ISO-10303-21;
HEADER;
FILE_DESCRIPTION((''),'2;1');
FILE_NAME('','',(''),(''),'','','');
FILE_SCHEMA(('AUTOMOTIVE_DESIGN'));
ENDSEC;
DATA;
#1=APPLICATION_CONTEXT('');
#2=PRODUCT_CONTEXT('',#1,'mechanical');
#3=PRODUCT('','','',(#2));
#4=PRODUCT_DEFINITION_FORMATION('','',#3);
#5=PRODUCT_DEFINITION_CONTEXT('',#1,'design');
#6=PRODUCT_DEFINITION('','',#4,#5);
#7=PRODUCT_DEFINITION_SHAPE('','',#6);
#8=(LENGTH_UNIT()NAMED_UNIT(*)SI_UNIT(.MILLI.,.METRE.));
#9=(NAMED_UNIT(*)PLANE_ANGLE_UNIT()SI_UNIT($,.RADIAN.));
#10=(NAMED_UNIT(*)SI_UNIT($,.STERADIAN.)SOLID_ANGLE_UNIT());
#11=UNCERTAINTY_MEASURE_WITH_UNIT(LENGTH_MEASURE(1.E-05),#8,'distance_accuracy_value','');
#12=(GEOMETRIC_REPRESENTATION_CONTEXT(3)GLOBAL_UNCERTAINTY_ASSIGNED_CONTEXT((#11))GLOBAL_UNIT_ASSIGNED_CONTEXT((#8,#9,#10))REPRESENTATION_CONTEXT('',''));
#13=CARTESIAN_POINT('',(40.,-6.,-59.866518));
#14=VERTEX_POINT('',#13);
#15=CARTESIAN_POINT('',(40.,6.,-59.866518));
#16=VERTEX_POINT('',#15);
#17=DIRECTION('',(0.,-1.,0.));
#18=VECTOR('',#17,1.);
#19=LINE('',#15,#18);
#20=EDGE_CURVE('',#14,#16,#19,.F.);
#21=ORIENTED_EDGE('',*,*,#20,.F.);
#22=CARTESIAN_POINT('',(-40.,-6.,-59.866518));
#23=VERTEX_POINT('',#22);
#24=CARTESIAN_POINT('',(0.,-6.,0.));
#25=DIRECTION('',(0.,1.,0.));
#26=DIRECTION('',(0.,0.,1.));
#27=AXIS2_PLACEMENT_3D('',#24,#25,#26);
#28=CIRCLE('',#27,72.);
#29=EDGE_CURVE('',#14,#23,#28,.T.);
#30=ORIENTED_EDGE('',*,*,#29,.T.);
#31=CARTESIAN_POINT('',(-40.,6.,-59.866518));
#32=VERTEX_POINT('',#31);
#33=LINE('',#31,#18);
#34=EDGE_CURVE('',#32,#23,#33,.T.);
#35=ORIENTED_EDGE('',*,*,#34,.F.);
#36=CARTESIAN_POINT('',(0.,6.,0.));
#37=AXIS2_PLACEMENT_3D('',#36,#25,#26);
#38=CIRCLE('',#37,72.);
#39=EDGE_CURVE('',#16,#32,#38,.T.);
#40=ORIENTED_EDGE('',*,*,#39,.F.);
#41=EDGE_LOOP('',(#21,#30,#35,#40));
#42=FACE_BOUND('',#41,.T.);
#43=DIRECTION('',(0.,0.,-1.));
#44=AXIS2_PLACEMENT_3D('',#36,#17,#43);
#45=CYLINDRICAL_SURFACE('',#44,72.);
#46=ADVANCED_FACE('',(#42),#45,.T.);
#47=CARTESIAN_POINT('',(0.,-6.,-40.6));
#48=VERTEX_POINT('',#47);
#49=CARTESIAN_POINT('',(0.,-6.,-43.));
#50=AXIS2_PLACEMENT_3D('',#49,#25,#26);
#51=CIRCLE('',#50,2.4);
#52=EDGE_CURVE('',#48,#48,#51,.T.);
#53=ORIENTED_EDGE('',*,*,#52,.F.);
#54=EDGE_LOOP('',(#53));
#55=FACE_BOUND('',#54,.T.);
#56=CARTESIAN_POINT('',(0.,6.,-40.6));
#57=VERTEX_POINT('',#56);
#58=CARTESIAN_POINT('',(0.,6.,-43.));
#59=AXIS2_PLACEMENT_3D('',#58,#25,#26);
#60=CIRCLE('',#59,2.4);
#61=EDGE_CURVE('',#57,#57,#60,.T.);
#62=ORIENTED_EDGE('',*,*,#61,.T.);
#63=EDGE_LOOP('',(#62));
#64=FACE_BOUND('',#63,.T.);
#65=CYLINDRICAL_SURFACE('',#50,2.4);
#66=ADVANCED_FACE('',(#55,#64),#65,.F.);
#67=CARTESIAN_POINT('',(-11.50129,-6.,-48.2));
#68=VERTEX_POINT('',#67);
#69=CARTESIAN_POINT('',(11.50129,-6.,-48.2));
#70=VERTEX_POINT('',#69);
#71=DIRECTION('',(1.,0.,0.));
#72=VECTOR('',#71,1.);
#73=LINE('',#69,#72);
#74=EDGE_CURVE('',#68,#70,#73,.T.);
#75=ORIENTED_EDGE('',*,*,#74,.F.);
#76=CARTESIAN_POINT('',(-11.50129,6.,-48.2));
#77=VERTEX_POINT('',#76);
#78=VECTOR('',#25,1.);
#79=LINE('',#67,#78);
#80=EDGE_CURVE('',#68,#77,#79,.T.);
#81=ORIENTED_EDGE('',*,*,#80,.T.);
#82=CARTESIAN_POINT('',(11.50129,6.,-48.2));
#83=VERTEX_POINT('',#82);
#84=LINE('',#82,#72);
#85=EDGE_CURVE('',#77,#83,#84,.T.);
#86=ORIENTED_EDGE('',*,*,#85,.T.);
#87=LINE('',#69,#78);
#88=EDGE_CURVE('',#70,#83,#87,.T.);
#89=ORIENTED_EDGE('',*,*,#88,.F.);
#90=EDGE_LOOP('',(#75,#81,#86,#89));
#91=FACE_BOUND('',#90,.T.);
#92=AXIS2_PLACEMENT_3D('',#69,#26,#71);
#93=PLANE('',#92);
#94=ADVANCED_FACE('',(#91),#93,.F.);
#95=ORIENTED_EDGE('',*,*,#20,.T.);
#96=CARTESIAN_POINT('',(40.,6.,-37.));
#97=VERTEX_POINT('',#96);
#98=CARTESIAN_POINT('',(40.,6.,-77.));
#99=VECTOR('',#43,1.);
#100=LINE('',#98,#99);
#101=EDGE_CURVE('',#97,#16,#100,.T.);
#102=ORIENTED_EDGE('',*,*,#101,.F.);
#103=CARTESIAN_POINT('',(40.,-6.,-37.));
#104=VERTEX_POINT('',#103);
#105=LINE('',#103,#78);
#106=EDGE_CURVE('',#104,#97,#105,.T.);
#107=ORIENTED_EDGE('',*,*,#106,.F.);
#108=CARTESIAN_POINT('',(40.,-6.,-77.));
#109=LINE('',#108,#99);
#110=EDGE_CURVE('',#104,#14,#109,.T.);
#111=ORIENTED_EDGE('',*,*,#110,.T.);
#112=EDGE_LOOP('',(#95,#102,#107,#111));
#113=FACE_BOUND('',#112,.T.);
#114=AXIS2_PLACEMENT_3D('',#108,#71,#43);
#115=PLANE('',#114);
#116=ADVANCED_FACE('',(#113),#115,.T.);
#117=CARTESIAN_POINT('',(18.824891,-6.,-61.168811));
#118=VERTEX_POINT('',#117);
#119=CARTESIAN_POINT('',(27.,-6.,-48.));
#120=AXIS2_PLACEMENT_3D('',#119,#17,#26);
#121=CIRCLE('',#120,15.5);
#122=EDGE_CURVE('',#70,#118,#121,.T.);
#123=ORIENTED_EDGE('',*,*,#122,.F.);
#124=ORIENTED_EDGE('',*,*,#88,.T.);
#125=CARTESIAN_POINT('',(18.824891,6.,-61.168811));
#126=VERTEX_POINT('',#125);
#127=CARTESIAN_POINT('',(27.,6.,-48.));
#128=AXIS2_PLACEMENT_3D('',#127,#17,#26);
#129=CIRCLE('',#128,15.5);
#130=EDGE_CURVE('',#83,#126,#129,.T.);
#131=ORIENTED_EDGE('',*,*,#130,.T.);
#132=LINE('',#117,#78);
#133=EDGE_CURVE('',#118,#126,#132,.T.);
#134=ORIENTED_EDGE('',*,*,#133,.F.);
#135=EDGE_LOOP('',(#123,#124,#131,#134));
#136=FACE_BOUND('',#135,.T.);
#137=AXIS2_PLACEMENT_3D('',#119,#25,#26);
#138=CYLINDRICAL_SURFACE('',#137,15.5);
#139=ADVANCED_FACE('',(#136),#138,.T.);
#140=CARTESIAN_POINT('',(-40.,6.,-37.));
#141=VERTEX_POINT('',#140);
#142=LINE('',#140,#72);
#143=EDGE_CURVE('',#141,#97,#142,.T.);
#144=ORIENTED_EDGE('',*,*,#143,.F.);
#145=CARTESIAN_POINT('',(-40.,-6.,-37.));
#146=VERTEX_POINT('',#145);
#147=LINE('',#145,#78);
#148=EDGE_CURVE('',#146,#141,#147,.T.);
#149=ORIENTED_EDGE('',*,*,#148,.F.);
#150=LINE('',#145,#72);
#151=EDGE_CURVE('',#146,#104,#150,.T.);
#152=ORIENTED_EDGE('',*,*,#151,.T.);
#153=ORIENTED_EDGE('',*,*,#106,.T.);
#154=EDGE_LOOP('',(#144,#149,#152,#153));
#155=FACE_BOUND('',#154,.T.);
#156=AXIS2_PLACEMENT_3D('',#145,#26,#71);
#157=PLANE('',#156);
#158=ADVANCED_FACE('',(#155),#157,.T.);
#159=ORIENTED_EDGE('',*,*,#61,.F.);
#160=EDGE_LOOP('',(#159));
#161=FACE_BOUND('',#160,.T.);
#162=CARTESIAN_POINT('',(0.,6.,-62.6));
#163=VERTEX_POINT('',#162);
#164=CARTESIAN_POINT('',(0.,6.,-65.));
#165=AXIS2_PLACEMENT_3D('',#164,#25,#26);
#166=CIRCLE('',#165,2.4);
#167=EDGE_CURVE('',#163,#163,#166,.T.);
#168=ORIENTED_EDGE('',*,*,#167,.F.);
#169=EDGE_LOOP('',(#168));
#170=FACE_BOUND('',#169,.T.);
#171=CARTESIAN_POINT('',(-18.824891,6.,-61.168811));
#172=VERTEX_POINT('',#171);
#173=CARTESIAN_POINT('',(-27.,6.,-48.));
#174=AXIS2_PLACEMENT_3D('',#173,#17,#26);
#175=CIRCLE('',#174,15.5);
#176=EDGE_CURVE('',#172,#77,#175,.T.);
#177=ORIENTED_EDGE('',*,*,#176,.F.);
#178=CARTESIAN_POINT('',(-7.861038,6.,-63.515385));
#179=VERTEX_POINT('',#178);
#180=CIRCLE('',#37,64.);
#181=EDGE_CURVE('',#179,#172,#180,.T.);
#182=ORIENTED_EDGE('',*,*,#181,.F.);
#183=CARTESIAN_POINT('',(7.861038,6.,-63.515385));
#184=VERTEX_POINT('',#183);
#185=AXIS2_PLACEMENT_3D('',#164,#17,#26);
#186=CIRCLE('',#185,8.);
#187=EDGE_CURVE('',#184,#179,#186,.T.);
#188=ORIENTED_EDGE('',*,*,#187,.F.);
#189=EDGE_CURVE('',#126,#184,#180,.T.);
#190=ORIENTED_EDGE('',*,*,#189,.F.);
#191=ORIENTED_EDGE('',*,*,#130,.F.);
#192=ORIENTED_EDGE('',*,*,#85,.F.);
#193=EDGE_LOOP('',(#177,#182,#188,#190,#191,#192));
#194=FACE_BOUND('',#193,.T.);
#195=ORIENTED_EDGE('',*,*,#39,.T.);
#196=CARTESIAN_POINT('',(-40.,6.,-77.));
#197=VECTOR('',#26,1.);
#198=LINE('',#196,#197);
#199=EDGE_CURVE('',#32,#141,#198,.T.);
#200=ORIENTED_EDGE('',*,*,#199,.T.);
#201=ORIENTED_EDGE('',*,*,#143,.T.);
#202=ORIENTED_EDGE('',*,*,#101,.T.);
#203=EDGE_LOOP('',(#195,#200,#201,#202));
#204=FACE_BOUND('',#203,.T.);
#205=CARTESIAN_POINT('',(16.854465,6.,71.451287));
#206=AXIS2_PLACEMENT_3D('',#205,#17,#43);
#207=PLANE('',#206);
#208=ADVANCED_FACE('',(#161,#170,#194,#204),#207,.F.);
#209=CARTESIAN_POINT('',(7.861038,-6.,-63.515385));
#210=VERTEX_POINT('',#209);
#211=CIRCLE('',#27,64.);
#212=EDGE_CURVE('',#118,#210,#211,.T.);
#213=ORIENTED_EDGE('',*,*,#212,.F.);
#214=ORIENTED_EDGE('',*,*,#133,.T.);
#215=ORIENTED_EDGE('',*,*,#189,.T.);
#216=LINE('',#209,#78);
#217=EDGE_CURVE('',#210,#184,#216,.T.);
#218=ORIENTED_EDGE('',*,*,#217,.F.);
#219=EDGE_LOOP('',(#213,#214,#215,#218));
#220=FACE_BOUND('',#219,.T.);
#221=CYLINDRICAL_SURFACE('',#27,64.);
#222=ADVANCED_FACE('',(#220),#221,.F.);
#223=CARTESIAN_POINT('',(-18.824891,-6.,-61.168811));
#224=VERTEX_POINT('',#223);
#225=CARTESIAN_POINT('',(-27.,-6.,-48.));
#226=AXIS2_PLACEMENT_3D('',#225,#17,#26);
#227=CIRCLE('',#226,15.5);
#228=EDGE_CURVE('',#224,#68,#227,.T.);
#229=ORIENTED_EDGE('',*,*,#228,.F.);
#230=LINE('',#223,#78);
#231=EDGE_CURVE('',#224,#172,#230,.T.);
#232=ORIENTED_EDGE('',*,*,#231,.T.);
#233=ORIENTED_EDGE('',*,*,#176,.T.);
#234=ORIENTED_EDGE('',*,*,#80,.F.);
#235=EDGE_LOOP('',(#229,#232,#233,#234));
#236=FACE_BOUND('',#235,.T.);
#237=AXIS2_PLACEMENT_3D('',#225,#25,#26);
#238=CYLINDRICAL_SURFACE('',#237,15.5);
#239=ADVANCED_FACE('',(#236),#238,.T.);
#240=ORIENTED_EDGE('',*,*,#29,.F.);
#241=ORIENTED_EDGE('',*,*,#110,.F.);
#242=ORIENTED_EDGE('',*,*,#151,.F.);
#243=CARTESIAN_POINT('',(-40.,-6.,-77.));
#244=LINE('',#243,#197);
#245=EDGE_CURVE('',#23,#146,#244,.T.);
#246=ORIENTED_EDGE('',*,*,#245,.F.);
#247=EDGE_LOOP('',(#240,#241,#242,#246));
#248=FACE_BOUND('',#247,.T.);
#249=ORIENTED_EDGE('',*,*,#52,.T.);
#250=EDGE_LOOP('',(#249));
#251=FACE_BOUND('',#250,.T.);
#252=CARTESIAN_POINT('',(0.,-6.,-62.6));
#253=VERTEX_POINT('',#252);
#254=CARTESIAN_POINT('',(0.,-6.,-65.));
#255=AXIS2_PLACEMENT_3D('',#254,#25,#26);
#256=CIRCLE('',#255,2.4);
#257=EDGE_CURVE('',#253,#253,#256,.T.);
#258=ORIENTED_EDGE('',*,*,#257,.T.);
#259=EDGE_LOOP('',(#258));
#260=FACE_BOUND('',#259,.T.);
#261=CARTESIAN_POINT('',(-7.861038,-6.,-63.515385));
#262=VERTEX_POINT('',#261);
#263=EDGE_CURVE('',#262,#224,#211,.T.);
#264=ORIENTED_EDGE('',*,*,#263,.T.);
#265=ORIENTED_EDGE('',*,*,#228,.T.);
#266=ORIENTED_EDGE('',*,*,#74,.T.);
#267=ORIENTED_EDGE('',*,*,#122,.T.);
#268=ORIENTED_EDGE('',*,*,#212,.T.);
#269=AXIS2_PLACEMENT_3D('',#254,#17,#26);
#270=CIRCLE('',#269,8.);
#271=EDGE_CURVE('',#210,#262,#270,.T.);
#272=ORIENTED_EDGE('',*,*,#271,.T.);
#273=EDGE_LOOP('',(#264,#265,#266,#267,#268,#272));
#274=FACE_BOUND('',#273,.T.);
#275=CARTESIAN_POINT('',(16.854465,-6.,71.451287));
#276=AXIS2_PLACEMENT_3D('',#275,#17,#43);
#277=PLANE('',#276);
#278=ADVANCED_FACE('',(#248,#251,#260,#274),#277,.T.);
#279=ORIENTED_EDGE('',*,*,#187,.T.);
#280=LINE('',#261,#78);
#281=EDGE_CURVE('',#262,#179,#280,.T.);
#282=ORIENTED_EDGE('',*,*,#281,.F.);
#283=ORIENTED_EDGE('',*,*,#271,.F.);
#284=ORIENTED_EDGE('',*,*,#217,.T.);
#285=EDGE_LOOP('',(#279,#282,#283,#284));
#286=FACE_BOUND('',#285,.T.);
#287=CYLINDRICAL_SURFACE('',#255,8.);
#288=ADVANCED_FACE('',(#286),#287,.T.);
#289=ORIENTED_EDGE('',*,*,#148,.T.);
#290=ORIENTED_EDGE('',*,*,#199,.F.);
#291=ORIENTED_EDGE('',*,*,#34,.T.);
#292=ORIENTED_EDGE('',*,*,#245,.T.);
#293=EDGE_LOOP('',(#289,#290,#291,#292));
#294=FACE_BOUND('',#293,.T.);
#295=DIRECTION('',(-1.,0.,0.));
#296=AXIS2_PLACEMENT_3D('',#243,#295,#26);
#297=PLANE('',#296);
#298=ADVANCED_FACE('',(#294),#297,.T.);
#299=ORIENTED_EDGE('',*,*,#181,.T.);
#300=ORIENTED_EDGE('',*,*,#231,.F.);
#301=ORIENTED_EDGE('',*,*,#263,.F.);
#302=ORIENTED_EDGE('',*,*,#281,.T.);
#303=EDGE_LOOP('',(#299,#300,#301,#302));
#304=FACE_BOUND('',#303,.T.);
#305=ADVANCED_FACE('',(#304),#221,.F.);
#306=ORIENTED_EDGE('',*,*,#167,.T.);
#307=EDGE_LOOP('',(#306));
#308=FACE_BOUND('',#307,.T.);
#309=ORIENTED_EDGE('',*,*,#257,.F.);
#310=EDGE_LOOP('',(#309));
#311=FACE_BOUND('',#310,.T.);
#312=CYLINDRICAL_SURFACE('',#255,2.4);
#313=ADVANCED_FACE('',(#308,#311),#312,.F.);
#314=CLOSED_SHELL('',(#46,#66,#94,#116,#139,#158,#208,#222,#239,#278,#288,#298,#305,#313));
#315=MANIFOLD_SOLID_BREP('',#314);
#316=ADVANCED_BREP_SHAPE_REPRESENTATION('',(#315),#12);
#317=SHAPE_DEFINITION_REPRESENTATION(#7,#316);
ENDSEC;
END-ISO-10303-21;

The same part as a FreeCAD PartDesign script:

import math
import FreeCAD as App
import Part
import Sketcher

V = App.Vector
Q = App.Units.Quantity


def add_polygon(sketch, points):
    """Adds a closed chain of lines whose ends are joined by coincident constraints."""
    first, n = sketch.GeometryCount, len(points)
    for a, b in zip(points, points[1:] + points[:1]):
        sketch.addGeometry(Part.LineSegment(App.Vector(*a, 0), App.Vector(*b, 0)), False)
    for i in range(n):
        sketch.addConstraint(Sketcher.Constraint("Coincident", first + i, 2, first + (i + 1) % n, 1))

doc = App.newDocument("Part")
params = doc.addObject("Spreadsheet::Sheet", "Params")
for row, (alias, value) in enumerate([
    ("sketch1_radius", "72 mm"),
    ("sketch1_radius2", "5 mm"),
    ("sketch1_radius3", "38.25 mm"),
    ("pad1_length", "12 mm"),
    ("sketch2_radius", "64 mm"),
    ("sketch2_radius2", "8 mm"),
    ("sketch2_radius3", "15.5 mm"),
    ("sketch3_width", "80 mm"),
    ("sketch3_height", "40 mm"),
    ("sketch4_diameter", "4.8 mm"),
], start=1):
    params.set(f"A{row}", alias)
    params.set(f"B{row}", "=" + value)
    params.setAlias(f"B{row}", alias)

body = doc.addObject("PartDesign::Body", "Body")

# Sketch on XZ plane
sketch1 = body.newObject("Sketcher::SketchObject", "Sketch")
sketch1.AttachmentSupport = (doc.getObject("XZ_Plane"), [""])
sketch1.MapMode = "FlatFace"
sketch1.addGeometry(Part.ArcOfCircle(Part.Circle(V(0, 0, 0), V(0, 0, 1), 72), math.radians(120.206525), math.radians(419.793475)), False)
sketch1.addGeometry(Part.ArcOfCircle(Part.Circle(V(-33.70893, 57.902574, 0), V(0, 0, 1), 5), math.radians(38.79458), math.radians(120.206525)), False)
sketch1.addGeometry(Part.ArcOfCircle(Part.Circle(V(0, 85, 0), V(0, 0, 1), 38.25), math.radians(-141.20542), math.radians(-38.79458)), False)
sketch1.addGeometry(Part.ArcOfCircle(Part.Circle(V(33.70893, 57.902574, 0), V(0, 0, 1), 5), math.radians(59.793475), math.radians(141.20542)), False)
sketch1.addConstraint(Sketcher.Constraint("Tangent", 0, 1, 1, 2))
sketch1.addConstraint(Sketcher.Constraint("Tangent", 1, 1, 2, 1))
sketch1.addConstraint(Sketcher.Constraint("Tangent", 2, 2, 3, 2))
sketch1.addConstraint(Sketcher.Constraint("Tangent", 3, 1, 0, 2))
sketch1.addConstraint(Sketcher.Constraint("Coincident", 0, 3, -1, 1))
sketch1.addConstraint(Sketcher.Constraint("Equal", 1, 3))
sketch1.addConstraint(Sketcher.Constraint("PointOnObject", 2, 3, -2))
sketch1.addConstraint(Sketcher.Constraint("Radius", 0, Q("72 mm")))
sketch1.addConstraint(Sketcher.Constraint("Radius", 1, Q("5 mm")))
sketch1.addConstraint(Sketcher.Constraint("Radius", 2, Q("38.25 mm")))
sketch1.addConstraint(Sketcher.Constraint("DistanceY", -1, 1, 2, 3, Q("85 mm")))
sketch1.setExpression("Constraints[7]", "Params.sketch1_radius")
sketch1.setExpression("Constraints[8]", "Params.sketch1_radius2")
sketch1.setExpression("Constraints[9]", "Params.sketch1_radius3")
pad1 = body.newObject("PartDesign::Pad", "Pad")
pad1.Profile = sketch1
pad1.setExpression("Length", "Params.pad1_length")
pad1.Midplane = True

# Sketch on XZ plane
sketch2 = body.newObject("Sketcher::SketchObject", "Sketch001")
sketch2.AttachmentSupport = (doc.getObject("XZ_Plane"), [""])
sketch2.MapMode = "FlatFace"
sketch2.AttachmentOffset = App.Placement(V(0, 0, -6), App.Rotation())
sketch2.addGeometry(Part.LineSegment(V(-11.50129, -48.2, 0), V(11.50129, -48.2, 0)), False)
sketch2.addGeometry(Part.ArcOfCircle(Part.Circle(V(27, -48, 0), V(0, 0, 1), 15.5), math.radians(-179.260679), math.radians(-121.831731)), False)
sketch2.addGeometry(Part.ArcOfCircle(Part.Circle(V(0, 0, 0), V(0, 0, 1), 64), math.radians(-82.944616), math.radians(-72.89409)), False)
sketch2.addGeometry(Part.ArcOfCircle(Part.Circle(V(0, -65, 0), V(0, 0, 1), 8), math.radians(10.69477), math.radians(169.30523)), False)
sketch2.addGeometry(Part.ArcOfCircle(Part.Circle(V(0, 0, 0), V(0, 0, 1), 64), math.radians(-107.10591), math.radians(-97.055384)), False)
sketch2.addGeometry(Part.ArcOfCircle(Part.Circle(V(-27, -48, 0), V(0, 0, 1), 15.5), math.radians(-58.168269), math.radians(-0.739321)), False)
sketch2.addConstraint(Sketcher.Constraint("Coincident", 0, 2, 1, 1))
sketch2.addConstraint(Sketcher.Constraint("Coincident", 1, 2, 2, 2))
sketch2.addConstraint(Sketcher.Constraint("Coincident", 2, 1, 3, 1))
sketch2.addConstraint(Sketcher.Constraint("Coincident", 3, 2, 4, 2))
sketch2.addConstraint(Sketcher.Constraint("Coincident", 4, 1, 5, 1))
sketch2.addConstraint(Sketcher.Constraint("Coincident", 5, 2, 0, 1))
sketch2.addConstraint(Sketcher.Constraint("Horizontal", 0))
sketch2.addConstraint(Sketcher.Constraint("Coincident", 2, 3, -1, 1))
sketch2.addConstraint(Sketcher.Constraint("Coincident", 4, 3, -1, 1))
sketch2.addConstraint(Sketcher.Constraint("Equal", 2, 4))
sketch2.addConstraint(Sketcher.Constraint("Equal", 1, 5))
sketch2.addConstraint(Sketcher.Constraint("Symmetric", 1, 3, 5, 3, -2))
sketch2.addConstraint(Sketcher.Constraint("PointOnObject", 3, 3, -2))
sketch2.addConstraint(Sketcher.Constraint("Radius", 2, Q("64 mm")))
sketch2.addConstraint(Sketcher.Constraint("Radius", 3, Q("8 mm")))
sketch2.addConstraint(Sketcher.Constraint("Radius", 1, Q("15.5 mm")))
sketch2.addConstraint(Sketcher.Constraint("DistanceX", -1, 1, 1, 3, Q("27 mm")))
sketch2.addConstraint(Sketcher.Constraint("DistanceY", 1, 3, -1, 1, Q("48 mm")))
sketch2.addConstraint(Sketcher.Constraint("DistanceY", 3, 3, -1, 1, Q("65 mm")))
sketch2.addConstraint(Sketcher.Constraint("DistanceY", 0, 2, -1, 1, Q("48.2 mm")))
sketch2.setExpression("Constraints[13]", "Params.sketch2_radius")
sketch2.setExpression("Constraints[14]", "Params.sketch2_radius2")
sketch2.setExpression("Constraints[15]", "Params.sketch2_radius3")
pocket1 = body.newObject("PartDesign::Pocket", "Pocket")
pocket1.Profile = sketch2
pocket1.Type = "ThroughAll"
pocket1.Reversed = True

# Sketch on XZ plane
sketch3 = body.newObject("Sketcher::SketchObject", "Sketch002")
sketch3.AttachmentSupport = (doc.getObject("XZ_Plane"), [""])
sketch3.MapMode = "FlatFace"
sketch3.AttachmentOffset = App.Placement(V(0, 0, -6), App.Rotation())
add_polygon(sketch3, [(-92.768, -92.768), (-92.768, 83.671), (92.768, 83.671), (92.768, -92.768)])  # lines 0-3
add_polygon(sketch3, [(40, -37), (-40, -37), (-40, -77), (40, -77)])  # lines 4-7
sketch3.addConstraint(Sketcher.Constraint("Vertical", 0))
sketch3.addConstraint(Sketcher.Constraint("Horizontal", 1))
sketch3.addConstraint(Sketcher.Constraint("Vertical", 2))
sketch3.addConstraint(Sketcher.Constraint("Horizontal", 3))
sketch3.addConstraint(Sketcher.Constraint("Horizontal", 4))
sketch3.addConstraint(Sketcher.Constraint("Vertical", 5))
sketch3.addConstraint(Sketcher.Constraint("Horizontal", 6))
sketch3.addConstraint(Sketcher.Constraint("Vertical", 7))
sketch3.addConstraint(Sketcher.Constraint("DistanceX", 4, 2, 4, 1, Q("80 mm")))
sketch3.addConstraint(Sketcher.Constraint("DistanceY", 5, 2, 5, 1, Q("40 mm")))
sketch3.addConstraint(Sketcher.Constraint("DistanceX", 4, 2, -1, 1, Q("40 mm")))
sketch3.addConstraint(Sketcher.Constraint("DistanceY", 4, 2, -1, 1, Q("37 mm")))
sketch3.addConstraint(Sketcher.Constraint("DistanceX", 1, 1, 1, 2, Q("185.536 mm")))
sketch3.addConstraint(Sketcher.Constraint("DistanceY", 0, 1, 0, 2, Q("176.439 mm")))
sketch3.addConstraint(Sketcher.Constraint("DistanceX", 0, 2, -1, 1, Q("92.768 mm")))
sketch3.addConstraint(Sketcher.Constraint("DistanceY", -1, 1, 0, 2, Q("83.671 mm")))
sketch3.setExpression("Constraints[16]", "Params.sketch3_width")
sketch3.setExpression("Constraints[17]", "Params.sketch3_height")
pocket2 = body.newObject("PartDesign::Pocket", "Pocket001")
pocket2.Profile = sketch3
pocket2.Type = "ThroughAll"
pocket2.Reversed = True

# Sketch on XZ plane
sketch4 = body.newObject("Sketcher::SketchObject", "Sketch003")
sketch4.AttachmentSupport = (doc.getObject("XZ_Plane"), [""])
sketch4.MapMode = "FlatFace"
sketch4.AttachmentOffset = App.Placement(V(0, 0, -6), App.Rotation())
sketch4.addGeometry(Part.Circle(V(0, -65, 0), V(0, 0, 1), 2.4), False)
sketch4.addGeometry(Part.Circle(V(0, -43, 0), V(0, 0, 1), 2.4), False)
sketch4.addConstraint(Sketcher.Constraint("Equal", 0, 1))
sketch4.addConstraint(Sketcher.Constraint("PointOnObject", 0, 3, -2))
sketch4.addConstraint(Sketcher.Constraint("PointOnObject", 1, 3, -2))
sketch4.addConstraint(Sketcher.Constraint("Diameter", 0, Q("4.8 mm")))
sketch4.addConstraint(Sketcher.Constraint("DistanceY", 0, 3, -1, 1, Q("65 mm")))
sketch4.addConstraint(Sketcher.Constraint("DistanceY", 1, 3, -1, 1, Q("43 mm")))
sketch4.setExpression("Constraints[3]", "Params.sketch4_diameter")
pocket3 = body.newObject("PartDesign::Pocket", "Pocket002")
pocket3.Profile = sketch4
pocket3.Type = "ThroughAll"
pocket3.Reversed = True

doc.recompute()
